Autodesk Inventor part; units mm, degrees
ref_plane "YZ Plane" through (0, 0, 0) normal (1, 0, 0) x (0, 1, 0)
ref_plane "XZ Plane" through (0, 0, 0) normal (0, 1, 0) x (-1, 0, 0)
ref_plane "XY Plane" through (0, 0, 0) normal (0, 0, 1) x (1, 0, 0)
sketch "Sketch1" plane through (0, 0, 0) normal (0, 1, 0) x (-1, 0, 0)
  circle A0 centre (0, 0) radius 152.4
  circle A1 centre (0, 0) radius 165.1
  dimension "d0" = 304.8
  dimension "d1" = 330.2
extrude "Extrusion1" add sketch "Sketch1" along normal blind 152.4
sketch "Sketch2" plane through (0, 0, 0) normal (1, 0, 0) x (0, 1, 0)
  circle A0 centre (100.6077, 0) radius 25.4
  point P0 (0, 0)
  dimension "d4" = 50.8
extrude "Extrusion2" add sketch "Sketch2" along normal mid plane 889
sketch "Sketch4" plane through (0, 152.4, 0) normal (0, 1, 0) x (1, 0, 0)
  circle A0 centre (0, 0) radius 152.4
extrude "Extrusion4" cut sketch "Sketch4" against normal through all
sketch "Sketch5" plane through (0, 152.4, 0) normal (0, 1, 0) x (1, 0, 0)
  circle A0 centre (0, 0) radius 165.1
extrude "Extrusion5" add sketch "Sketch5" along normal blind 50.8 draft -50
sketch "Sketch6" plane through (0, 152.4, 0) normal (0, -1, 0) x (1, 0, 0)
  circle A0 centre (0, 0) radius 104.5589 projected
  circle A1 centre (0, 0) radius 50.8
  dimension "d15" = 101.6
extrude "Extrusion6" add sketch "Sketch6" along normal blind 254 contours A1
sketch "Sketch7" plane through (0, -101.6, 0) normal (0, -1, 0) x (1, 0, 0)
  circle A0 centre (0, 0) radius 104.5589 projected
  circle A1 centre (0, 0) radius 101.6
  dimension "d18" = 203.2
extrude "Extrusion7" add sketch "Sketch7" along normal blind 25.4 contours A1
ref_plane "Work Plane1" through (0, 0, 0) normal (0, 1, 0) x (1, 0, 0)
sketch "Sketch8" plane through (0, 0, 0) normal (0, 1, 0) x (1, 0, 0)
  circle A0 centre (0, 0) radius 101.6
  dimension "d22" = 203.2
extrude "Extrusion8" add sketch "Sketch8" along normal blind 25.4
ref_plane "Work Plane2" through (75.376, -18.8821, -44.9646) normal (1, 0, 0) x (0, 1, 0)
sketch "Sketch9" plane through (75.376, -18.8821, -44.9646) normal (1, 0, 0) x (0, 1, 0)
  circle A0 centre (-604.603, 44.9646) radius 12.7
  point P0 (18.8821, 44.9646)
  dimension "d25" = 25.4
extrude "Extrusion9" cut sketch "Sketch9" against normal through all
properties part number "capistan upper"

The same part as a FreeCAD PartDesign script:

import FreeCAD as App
import Part
import Sketcher
Q = App.Units.Quantity

doc = App.newDocument("Part")
body = doc.addObject("PartDesign::Body", "Body")

# Sketch on XZ plane
sketch1 = doc.addObject("Sketcher::SketchObject", "Sketch")
body.addObject(sketch1)
sketch1.AttachmentSupport = (doc.XZ_Plane, [""])
sketch1.MapMode = "FlatFace"
sketch1.addGeometry(Part.Circle(App.Vector(0, 0, 0), App.Vector(0, 0, 1), 165), False)
sketch1.addGeometry(Part.Circle(App.Vector(0, 0, 0), App.Vector(0, 0, 1), 152), False)
sketch1.addConstraint(Sketcher.Constraint("Coincident", 0, 3, -1, 1))
sketch1.addConstraint(Sketcher.Constraint("Coincident", 1, 3, -1, 1))
sketch1.addConstraint(Sketcher.Constraint("Diameter", 0, Q("13 in")))
sketch1.addConstraint(Sketcher.Constraint("Diameter", 1, Q("12 in")))
pad1 = doc.addObject("PartDesign::Pad", "Pad")
body.addObject(pad1)
pad1.Profile = sketch1
pad1.Length = Q("6 in")
pad1.Reversed = True

# Sketch on YZ plane
sketch2 = doc.addObject("Sketcher::SketchObject", "Sketch001")
body.addObject(sketch2)
sketch2.AttachmentSupport = (doc.YZ_Plane, [""])
sketch2.MapMode = "FlatFace"
sketch2.addGeometry(Part.Circle(App.Vector(101, 0, 0), App.Vector(0, 0, 1), 25), False)
sketch2.addConstraint(Sketcher.Constraint("PointOnObject", 0, 3, -1))
sketch2.addConstraint(Sketcher.Constraint("Diameter", 0, Q("2 in")))
sketch2.addConstraint(Sketcher.Constraint("DistanceX", -1, 1, 0, 3, 100.6077))
pad2 = doc.addObject("PartDesign::Pad", "Pad001")
body.addObject(pad2)
pad2.Profile = sketch2
pad2.Length = Q("35 in")
pad2.Midplane = True

# Sketch on XZ plane
sketch3 = doc.addObject("Sketcher::SketchObject", "Sketch002")
body.addObject(sketch3)
sketch3.AttachmentSupport = (doc.XZ_Plane, [""])
sketch3.MapMode = "FlatFace"
sketch3.AttachmentOffset = App.Placement(App.Vector(0, 0, -6 * 25.4), App.Rotation())
sketch3.addGeometry(Part.Circle(App.Vector(0, 0, 0), App.Vector(0, 0, 1), 152), False)
sketch3.addConstraint(Sketcher.Constraint("Coincident", 0, 3, -1, 1))
sketch3.addConstraint(Sketcher.Constraint("Diameter", 0, Q("12 in")))
pocket1 = doc.addObject("PartDesign::Pocket", "Pocket")
body.addObject(pocket1)
pocket1.Profile = sketch3
pocket1.Type = "ThroughAll"
pocket1.Reversed = True

# Sketch on XZ plane
sketch4 = doc.addObject("Sketcher::SketchObject", "Sketch003")
body.addObject(sketch4)
sketch4.AttachmentSupport = (doc.XZ_Plane, [""])
sketch4.MapMode = "FlatFace"
sketch4.AttachmentOffset = App.Placement(App.Vector(0, 0, -6 * 25.4), App.Rotation())
sketch4.addGeometry(Part.Circle(App.Vector(0, 0, 0), App.Vector(0, 0, 1), 165), False)
sketch4.addConstraint(Sketcher.Constraint("Coincident", 0, 3, -1, 1))
sketch4.addConstraint(Sketcher.Constraint("Diameter", 0, Q("13 in")))
pad3 = doc.addObject("PartDesign::Pad", "Pad002")
body.addObject(pad3)
pad3.Profile = sketch4
pad3.Length = Q("2 in")
pad3.Reversed = True
pad3.TaperAngle = -50

# Sketch on XZ plane
sketch5 = doc.addObject("Sketcher::SketchObject", "Sketch004")
body.addObject(sketch5)
sketch5.AttachmentSupport = (doc.XZ_Plane, [""])
sketch5.MapMode = "FlatFace"
sketch5.AttachmentOffset = App.Placement(App.Vector(0, 0, -6 * 25.4), App.Rotation())
sketch5.addGeometry(Part.Circle(App.Vector(0, 0, 0), App.Vector(0, 0, 1), 51), False)
sketch5.addConstraint(Sketcher.Constraint("Coincident", 0, 3, -1, 1))
sketch5.addConstraint(Sketcher.Constraint("Diameter", 0, Q("4 in")))
pad4 = doc.addObject("PartDesign::Pad", "Pad003")
body.addObject(pad4)
pad4.Profile = sketch5
pad4.Length = Q("10 in")

# Sketch on XZ plane
sketch6 = doc.addObject("Sketcher::SketchObject", "Sketch005")
body.addObject(sketch6)
sketch6.AttachmentSupport = (doc.XZ_Plane, [""])
sketch6.MapMode = "FlatFace"
sketch6.AttachmentOffset = App.Placement(App.Vector(0, 0, 4 * 25.4), App.Rotation())
sketch6.addGeometry(Part.Circle(App.Vector(0, 0, 0), App.Vector(0, 0, 1), 102), False)
sketch6.addConstraint(Sketcher.Constraint("Coincident", 0, 3, -1, 1))
sketch6.addConstraint(Sketcher.Constraint("Diameter", 0, Q("8 in")))
pad5 = doc.addObject("PartDesign::Pad", "Pad004")
body.addObject(pad5)
pad5.Profile = sketch6
pad5.Length = Q("1 in")

# Sketch on XZ plane
sketch7 = doc.addObject("Sketcher::SketchObject", "Sketch006")
body.addObject(sketch7)
sketch7.AttachmentSupport = (doc.XZ_Plane, [""])
sketch7.MapMode = "FlatFace"
sketch7.addGeometry(Part.Circle(App.Vector(0, 0, 0), App.Vector(0, 0, 1), 102), False)
sketch7.addConstraint(Sketcher.Constraint("Coincident", 0, 3, -1, 1))
sketch7.addConstraint(Sketcher.Constraint("Diameter", 0, Q("8 in")))
pad6 = doc.addObject("PartDesign::Pad", "Pad005")
body.addObject(pad6)
pad6.Profile = sketch7
pad6.Length = Q("1 in")
pad6.Reversed = True

# Sketch on YZ plane
sketch8 = doc.addObject("Sketcher::SketchObject", "Sketch007")
body.addObject(sketch8)
sketch8.AttachmentSupport = (doc.YZ_Plane, [""])
sketch8.MapMode = "FlatFace"
sketch8.AttachmentOffset = App.Placement(App.Vector(0, 0, 75.376), App.Rotation())
sketch8.addGeometry(Part.Circle(App.Vector(-623, 0, 0), App.Vector(0, 0, 1), 13), False)
sketch8.addConstraint(Sketcher.Constraint("PointOnObject", 0, 3, -1))
sketch8.addConstraint(Sketcher.Constraint("Diameter", 0, Q("1 in")))
sketch8.addConstraint(Sketcher.Constraint("DistanceX", 0, 3, -1, 1, 623.485))
pocket2 = doc.addObject("PartDesign::Pocket", "Pocket001")
body.addObject(pocket2)
pocket2.Profile = sketch8
pocket2.Type = "ThroughAll"

doc.recompute()
